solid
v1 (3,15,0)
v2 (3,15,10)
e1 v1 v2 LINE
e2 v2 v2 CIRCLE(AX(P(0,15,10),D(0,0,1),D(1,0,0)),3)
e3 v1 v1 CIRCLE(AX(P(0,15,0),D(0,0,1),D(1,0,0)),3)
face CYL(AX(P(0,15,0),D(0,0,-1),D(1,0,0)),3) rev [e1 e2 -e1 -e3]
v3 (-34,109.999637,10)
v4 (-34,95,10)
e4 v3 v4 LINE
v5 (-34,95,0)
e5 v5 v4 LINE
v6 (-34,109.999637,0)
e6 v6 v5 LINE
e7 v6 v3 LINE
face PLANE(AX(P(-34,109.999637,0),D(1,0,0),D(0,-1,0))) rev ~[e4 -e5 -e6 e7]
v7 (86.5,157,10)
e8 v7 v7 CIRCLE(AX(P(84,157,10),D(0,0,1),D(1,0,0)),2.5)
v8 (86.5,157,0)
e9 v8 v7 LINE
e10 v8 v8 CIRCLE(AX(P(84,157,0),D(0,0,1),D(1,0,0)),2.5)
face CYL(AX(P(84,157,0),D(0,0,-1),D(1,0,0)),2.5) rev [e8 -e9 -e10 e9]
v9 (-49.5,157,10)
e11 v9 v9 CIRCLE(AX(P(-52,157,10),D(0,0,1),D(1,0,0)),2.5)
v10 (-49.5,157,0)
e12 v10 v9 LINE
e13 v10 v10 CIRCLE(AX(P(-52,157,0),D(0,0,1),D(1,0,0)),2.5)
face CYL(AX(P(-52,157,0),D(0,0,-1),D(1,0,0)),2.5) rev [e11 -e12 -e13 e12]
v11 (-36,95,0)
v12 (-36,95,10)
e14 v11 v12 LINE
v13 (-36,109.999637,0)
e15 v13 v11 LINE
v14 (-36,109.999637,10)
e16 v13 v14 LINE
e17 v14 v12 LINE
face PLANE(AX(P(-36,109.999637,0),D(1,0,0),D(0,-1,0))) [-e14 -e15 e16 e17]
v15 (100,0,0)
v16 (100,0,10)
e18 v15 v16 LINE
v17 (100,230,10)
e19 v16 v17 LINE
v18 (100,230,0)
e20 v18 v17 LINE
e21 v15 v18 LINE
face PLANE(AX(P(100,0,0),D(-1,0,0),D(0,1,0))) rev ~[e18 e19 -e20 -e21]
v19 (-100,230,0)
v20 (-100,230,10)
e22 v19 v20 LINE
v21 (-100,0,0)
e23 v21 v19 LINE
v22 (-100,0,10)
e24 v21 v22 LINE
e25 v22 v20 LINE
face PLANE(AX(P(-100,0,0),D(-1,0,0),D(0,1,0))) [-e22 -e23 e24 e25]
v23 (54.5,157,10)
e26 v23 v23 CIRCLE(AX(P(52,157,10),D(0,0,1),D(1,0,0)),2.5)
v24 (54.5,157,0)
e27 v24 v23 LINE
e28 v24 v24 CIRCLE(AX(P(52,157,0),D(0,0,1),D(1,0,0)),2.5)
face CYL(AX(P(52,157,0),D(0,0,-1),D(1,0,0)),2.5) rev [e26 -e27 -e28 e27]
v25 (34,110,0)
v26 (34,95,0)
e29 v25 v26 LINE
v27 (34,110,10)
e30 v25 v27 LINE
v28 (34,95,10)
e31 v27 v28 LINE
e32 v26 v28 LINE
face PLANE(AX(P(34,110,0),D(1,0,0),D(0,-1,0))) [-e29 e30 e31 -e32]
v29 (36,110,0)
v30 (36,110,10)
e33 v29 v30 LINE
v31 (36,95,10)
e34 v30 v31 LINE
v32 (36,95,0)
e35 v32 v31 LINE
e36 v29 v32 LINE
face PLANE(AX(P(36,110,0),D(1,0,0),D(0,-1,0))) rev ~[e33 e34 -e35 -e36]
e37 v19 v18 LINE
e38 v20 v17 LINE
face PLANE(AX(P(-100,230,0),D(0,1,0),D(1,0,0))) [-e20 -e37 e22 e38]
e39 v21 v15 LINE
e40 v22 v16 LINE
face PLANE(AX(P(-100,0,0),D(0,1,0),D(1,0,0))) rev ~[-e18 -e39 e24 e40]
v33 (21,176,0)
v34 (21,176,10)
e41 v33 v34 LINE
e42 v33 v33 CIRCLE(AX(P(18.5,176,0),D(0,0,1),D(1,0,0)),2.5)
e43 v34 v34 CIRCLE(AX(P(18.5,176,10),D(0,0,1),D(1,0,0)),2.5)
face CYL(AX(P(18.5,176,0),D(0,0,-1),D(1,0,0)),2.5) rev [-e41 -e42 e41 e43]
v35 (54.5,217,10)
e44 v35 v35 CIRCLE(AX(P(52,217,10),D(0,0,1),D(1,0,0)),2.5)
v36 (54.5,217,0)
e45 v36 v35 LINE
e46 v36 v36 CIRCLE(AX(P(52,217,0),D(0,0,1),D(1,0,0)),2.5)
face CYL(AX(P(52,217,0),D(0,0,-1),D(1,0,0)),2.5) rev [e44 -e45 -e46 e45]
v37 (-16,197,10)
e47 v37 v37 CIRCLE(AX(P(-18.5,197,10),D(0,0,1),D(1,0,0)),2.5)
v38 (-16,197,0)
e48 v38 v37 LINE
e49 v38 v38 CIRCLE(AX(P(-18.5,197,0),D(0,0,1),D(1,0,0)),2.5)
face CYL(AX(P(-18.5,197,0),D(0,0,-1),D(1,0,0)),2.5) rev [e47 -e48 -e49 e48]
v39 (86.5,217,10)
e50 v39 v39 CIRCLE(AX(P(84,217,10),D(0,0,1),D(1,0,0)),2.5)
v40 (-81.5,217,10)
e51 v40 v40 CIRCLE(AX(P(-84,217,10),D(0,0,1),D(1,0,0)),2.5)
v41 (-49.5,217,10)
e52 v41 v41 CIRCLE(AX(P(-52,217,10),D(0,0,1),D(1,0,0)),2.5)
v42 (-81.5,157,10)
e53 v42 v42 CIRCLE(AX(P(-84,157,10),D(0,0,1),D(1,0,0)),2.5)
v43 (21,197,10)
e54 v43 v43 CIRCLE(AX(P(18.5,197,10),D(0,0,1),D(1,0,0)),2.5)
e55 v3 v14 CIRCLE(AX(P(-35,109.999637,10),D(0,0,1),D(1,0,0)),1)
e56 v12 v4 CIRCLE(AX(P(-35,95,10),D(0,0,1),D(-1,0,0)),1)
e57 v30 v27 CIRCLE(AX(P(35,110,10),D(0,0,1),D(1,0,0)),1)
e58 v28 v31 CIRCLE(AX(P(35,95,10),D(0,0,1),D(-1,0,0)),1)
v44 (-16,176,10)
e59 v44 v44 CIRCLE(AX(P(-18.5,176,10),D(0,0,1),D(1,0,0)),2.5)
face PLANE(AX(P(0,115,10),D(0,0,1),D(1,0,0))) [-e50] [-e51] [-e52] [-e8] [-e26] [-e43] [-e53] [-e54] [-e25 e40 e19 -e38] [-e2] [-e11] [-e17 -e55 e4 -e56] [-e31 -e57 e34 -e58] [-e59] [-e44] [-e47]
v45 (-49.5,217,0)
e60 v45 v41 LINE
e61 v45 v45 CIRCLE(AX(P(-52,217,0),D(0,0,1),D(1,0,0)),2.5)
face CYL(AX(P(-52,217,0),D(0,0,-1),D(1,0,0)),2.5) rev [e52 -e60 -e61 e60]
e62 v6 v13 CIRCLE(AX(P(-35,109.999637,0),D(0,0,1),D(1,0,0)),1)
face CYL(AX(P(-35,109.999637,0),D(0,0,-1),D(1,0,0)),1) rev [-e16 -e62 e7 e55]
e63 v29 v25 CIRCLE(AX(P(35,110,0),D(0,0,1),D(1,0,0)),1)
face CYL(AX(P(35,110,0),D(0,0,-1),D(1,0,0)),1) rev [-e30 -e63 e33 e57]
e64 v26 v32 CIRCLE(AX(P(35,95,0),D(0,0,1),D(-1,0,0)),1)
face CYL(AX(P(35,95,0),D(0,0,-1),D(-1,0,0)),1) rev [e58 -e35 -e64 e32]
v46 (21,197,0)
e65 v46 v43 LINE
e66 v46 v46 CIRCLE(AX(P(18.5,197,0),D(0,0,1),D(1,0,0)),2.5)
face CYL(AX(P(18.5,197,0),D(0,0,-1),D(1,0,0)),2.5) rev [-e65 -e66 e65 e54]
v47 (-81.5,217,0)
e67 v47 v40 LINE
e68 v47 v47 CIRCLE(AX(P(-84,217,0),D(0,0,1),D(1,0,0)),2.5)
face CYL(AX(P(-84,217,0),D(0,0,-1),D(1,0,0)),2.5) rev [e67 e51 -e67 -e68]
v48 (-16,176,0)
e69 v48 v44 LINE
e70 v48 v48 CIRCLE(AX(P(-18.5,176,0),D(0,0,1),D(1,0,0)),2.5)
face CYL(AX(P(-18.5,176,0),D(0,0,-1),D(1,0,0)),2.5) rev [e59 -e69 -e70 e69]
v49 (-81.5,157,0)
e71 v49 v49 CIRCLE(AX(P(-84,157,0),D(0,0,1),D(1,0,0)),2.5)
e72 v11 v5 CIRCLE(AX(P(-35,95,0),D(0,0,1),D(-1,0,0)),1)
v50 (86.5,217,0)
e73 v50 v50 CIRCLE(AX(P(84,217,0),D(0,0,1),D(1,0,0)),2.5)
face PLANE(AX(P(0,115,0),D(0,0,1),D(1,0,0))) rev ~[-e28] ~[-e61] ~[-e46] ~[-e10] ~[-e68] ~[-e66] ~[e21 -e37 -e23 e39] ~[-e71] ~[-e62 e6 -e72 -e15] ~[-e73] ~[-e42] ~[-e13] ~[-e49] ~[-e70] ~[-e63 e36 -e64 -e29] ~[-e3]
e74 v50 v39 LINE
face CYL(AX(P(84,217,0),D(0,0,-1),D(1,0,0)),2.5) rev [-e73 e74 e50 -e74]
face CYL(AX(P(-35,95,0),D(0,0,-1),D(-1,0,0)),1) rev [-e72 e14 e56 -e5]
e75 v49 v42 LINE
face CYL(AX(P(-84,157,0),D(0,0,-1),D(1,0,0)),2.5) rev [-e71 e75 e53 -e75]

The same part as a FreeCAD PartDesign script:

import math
import FreeCAD as App
import Part
import Sketcher

doc = App.newDocument("Part")
params = doc.addObject("Spreadsheet::Sheet", "Params")
for row, (alias, value) in enumerate([
    ("sketch1_diameter", "6 mm"),
    ("sketch1_diameter2", "5 mm"),
    ("sketch1_radius", "1 mm"),
    ("sketch1_width", "200 mm"),
    ("sketch1_height", "230 mm"),
    ("pad1_length", "10 mm"),
], start=1):
    params.set(f"A{row}", alias)
    params.set(f"B{row}", "=" + value)
    params.setAlias(f"B{row}", alias)

body = doc.addObject("PartDesign::Body", "Body")

# Sketch on XY plane
sketch1 = doc.addObject("Sketcher::SketchObject", "Sketch")
body.addObject(sketch1)
sketch1.AttachmentSupport = (doc.XY_Plane, [""])
sketch1.MapMode = "FlatFace"
sketch1.addGeometry(Part.LineSegment(App.Vector(-100, 230, 0), App.Vector(-100, 0, 0)), False)
sketch1.addGeometry(Part.LineSegment(App.Vector(-100, 0, 0), App.Vector(100, 0, 0)), False)
sketch1.addGeometry(Part.LineSegment(App.Vector(100, 0, 0), App.Vector(100, 230, 0)), False)
sketch1.addGeometry(Part.LineSegment(App.Vector(100, 230, 0), App.Vector(-100, 230, 0)), False)
sketch1.addGeometry(Part.ArcOfCircle(Part.Circle(App.Vector(-35, 110, 0), App.Vector(0, 0, 1), 1), math.radians(0), math.radians(180)), False)
sketch1.addGeometry(Part.LineSegment(App.Vector(-34, 110, 0), App.Vector(-34, 95, 0)), False)
sketch1.addGeometry(Part.ArcOfCircle(Part.Circle(App.Vector(-35, 95, 0), App.Vector(0, 0, 1), 1), math.radians(180), math.radians(360)), False)
sketch1.addGeometry(Part.LineSegment(App.Vector(-36, 95, 0), App.Vector(-36, 110, 0)), False)
sketch1.addGeometry(Part.Circle(App.Vector(0, 15, 0), App.Vector(0, 0, 1), 3), False)
sketch1.addGeometry(Part.ArcOfCircle(Part.Circle(App.Vector(35, 110, 0), App.Vector(0, 0, 1), 1), math.radians(0), math.radians(180)), False)
sketch1.addGeometry(Part.LineSegment(App.Vector(36, 110, 0), App.Vector(36, 95, 0)), False)
sketch1.addGeometry(Part.ArcOfCircle(Part.Circle(App.Vector(35, 95, 0), App.Vector(0, 0, 1), 1), math.radians(180), math.radians(360)), False)
sketch1.addGeometry(Part.LineSegment(App.Vector(34, 95, 0), App.Vector(34, 110, 0)), False)
sketch1.addGeometry(Part.Circle(App.Vector(-84, 157, 0), App.Vector(0, 0, 1), 2.5), False)
sketch1.addGeometry(Part.Circle(App.Vector(-52, 157, 0), App.Vector(0, 0, 1), 2.5), False)
sketch1.addGeometry(Part.Circle(App.Vector(-84, 217, 0), App.Vector(0, 0, 1), 2.5), False)
sketch1.addGeometry(Part.Circle(App.Vector(-52, 217, 0), App.Vector(0, 0, 1), 2.5), False)
sketch1.addGeometry(Part.Circle(App.Vector(-18.5, 176, 0), App.Vector(0, 0, 1), 2.5), False)
sketch1.addGeometry(Part.Circle(App.Vector(-18.5, 197, 0), App.Vector(0, 0, 1), 2.5), False)
sketch1.addGeometry(Part.Circle(App.Vector(52, 157, 0), App.Vector(0, 0, 1), 2.5), False)
sketch1.addGeometry(Part.Circle(App.Vector(84, 157, 0), App.Vector(0, 0, 1), 2.5), False)
sketch1.addGeometry(Part.Circle(App.Vector(18.5, 176, 0), App.Vector(0, 0, 1), 2.5), False)
sketch1.addGeometry(Part.Circle(App.Vector(18.5, 197, 0), App.Vector(0, 0, 1), 2.5), False)
sketch1.addGeometry(Part.Circle(App.Vector(52, 217, 0), App.Vector(0, 0, 1), 2.5), False)
sketch1.addGeometry(Part.Circle(App.Vector(84, 217, 0), App.Vector(0, 0, 1), 2.5), False)
sketch1.addConstraint(Sketcher.Constraint("Coincident", 0, 2, 1, 1))
sketch1.addConstraint(Sketcher.Constraint("Coincident", 1, 2, 2, 1))
sketch1.addConstraint(Sketcher.Constraint("Coincident", 2, 2, 3, 1))
sketch1.addConstraint(Sketcher.Constraint("Coincident", 3, 2, 0, 1))
sketch1.addConstraint(Sketcher.Constraint("Tangent", 4, 1, 5, 1))
sketch1.addConstraint(Sketcher.Constraint("Tangent", 5, 2, 6, 2))
sketch1.addConstraint(Sketcher.Constraint("Tangent", 6, 1, 7, 1))
sketch1.addConstraint(Sketcher.Constraint("Tangent", 7, 2, 4, 2))
sketch1.addConstraint(Sketcher.Constraint("Tangent", 9, 1, 10, 1))
sketch1.addConstraint(Sketcher.Constraint("Tangent", 10, 2, 11, 2))
sketch1.addConstraint(Sketcher.Constraint("Tangent", 11, 1, 12, 1))
sketch1.addConstraint(Sketcher.Constraint("Tangent", 12, 2, 9, 2))
sketch1.addConstraint(Sketcher.Constraint("Vertical", 0))
sketch1.addConstraint(Sketcher.Constraint("Horizontal", 1))
sketch1.addConstraint(Sketcher.Constraint("Vertical", 2))
sketch1.addConstraint(Sketcher.Constraint("Horizontal", 3))
sketch1.addConstraint(Sketcher.Constraint("Vertical", 5))
sketch1.addConstraint(Sketcher.Constraint("Vertical", 7))
sketch1.addConstraint(Sketcher.Constraint("Vertical", 10))
sketch1.addConstraint(Sketcher.Constraint("Vertical", 12))
sketch1.addConstraint(Sketcher.Constraint("Equal", 6, 9))
sketch1.addConstraint(Sketcher.Constraint("Equal", 13, 14))
sketch1.addConstraint(Sketcher.Constraint("Equal", 14, 15))
sketch1.addConstraint(Sketcher.Constraint("Equal", 15, 16))
sketch1.addConstraint(Sketcher.Constraint("Equal", 16, 17))
sketch1.addConstraint(Sketcher.Constraint("Equal", 17, 18))
sketch1.addConstraint(Sketcher.Constraint("Equal", 18, 19))
sketch1.addConstraint(Sketcher.Constraint("Equal", 19, 20))
sketch1.addConstraint(Sketcher.Constraint("Equal", 20, 21))
sketch1.addConstraint(Sketcher.Constraint("Equal", 21, 22))
sketch1.addConstraint(Sketcher.Constraint("Equal", 22, 23))
sketch1.addConstraint(Sketcher.Constraint("Equal", 23, 24))
sketch1.addConstraint(Sketcher.Constraint("Symmetric", 0, 2, 1, 2, -1, 1))
sketch1.addConstraint(Sketcher.Constraint("Symmetric", 6, 3, 11, 3, -2))
sketch1.addConstraint(Sketcher.Constraint("Symmetric", 14, 3, 19, 3, -2))
sketch1.addConstraint(Sketcher.Constraint("Symmetric", 13, 3, 20, 3, -2))
sketch1.addConstraint(Sketcher.Constraint("Symmetric", 17, 3, 21, 3, -2))
sketch1.addConstraint(Sketcher.Constraint("Symmetric", 18, 3, 22, 3, -2))
sketch1.addConstraint(Sketcher.Constraint("Symmetric", 16, 3, 23, 3, -2))
sketch1.addConstraint(Sketcher.Constraint("Symmetric", 15, 3, 24, 3, -2))
sketch1.addConstraint(Sketcher.Constraint("PointOnObject", 8, 3, -2))
sketch1.addConstraint(Sketcher.Constraint("Horizontal", 13, 3, 14, 3))
sketch1.addConstraint(Sketcher.Constraint("Horizontal", 15, 3, 16, 3))
sketch1.addConstraint(Sketcher.Constraint("Vertical", 13, 3, 15, 3))
sketch1.addConstraint(Sketcher.Constraint("Vertical", 14, 3, 16, 3))
sketch1.addConstraint(Sketcher.Constraint("Vertical", 17, 3, 18, 3))
sketch1.addConstraint(Sketcher.Constraint("Diameter", 8, 6.0))
sketch1.addConstraint(Sketcher.Constraint("Diameter", 13, 5.0))
sketch1.addConstraint(Sketcher.Constraint("Radius", 4, 1.0))
sketch1.addConstraint(Sketcher.Constraint("DistanceX", 1, 1, 1, 2, 200.0))
sketch1.addConstraint(Sketcher.Constraint("DistanceY", 0, 2, 0, 1, 230.0))
sketch1.addConstraint(Sketcher.Constraint("DistanceY", 10, 2, 10, 1, 15.0))
sketch1.addConstraint(Sketcher.Constraint("DistanceX", 4, 3, -1, 1, 35.0))
sketch1.addConstraint(Sketcher.Constraint("DistanceY", -1, 1, 6, 3, 95.0))
sketch1.addConstraint(Sketcher.Constraint("DistanceY", -1, 1, 8, 3, 15.0))
sketch1.addConstraint(Sketcher.Constraint("DistanceX", 13, 3, -1, 1, 84.0))
sketch1.addConstraint(Sketcher.Constraint("DistanceY", -1, 1, 13, 3, 157.0))
sketch1.addConstraint(Sketcher.Constraint("DistanceX", 14, 3, -1, 1, 52.0))
sketch1.addConstraint(Sketcher.Constraint("DistanceY", -1, 1, 15, 3, 217.0))
sketch1.addConstraint(Sketcher.Constraint("DistanceY", -1, 1, 17, 3, 176.0))
sketch1.addConstraint(Sketcher.Constraint("DistanceY", -1, 1, 18, 3, 197.0))
sketch1.addConstraint(Sketcher.Constraint("DistanceX", 17, 3, 21, 3, 37.0))
sketch1.addConstraint(Sketcher.Constraint("DistanceY", 5, 2, 5, 1, 14.999637))
sketch1.setExpression("Constraints[46]", "Params.sketch1_diameter")
sketch1.setExpression("Constraints[47]", "Params.sketch1_diameter2")
sketch1.setExpression("Constraints[48]", "Params.sketch1_radius")
sketch1.setExpression("Constraints[49]", "Params.sketch1_width")
sketch1.setExpression("Constraints[50]", "Params.sketch1_height")
pad1 = doc.addObject("PartDesign::Pad", "Pad")
body.addObject(pad1)
pad1.Profile = sketch1
pad1.setExpression("Length", "Params.pad1_length")

doc.recompute()
